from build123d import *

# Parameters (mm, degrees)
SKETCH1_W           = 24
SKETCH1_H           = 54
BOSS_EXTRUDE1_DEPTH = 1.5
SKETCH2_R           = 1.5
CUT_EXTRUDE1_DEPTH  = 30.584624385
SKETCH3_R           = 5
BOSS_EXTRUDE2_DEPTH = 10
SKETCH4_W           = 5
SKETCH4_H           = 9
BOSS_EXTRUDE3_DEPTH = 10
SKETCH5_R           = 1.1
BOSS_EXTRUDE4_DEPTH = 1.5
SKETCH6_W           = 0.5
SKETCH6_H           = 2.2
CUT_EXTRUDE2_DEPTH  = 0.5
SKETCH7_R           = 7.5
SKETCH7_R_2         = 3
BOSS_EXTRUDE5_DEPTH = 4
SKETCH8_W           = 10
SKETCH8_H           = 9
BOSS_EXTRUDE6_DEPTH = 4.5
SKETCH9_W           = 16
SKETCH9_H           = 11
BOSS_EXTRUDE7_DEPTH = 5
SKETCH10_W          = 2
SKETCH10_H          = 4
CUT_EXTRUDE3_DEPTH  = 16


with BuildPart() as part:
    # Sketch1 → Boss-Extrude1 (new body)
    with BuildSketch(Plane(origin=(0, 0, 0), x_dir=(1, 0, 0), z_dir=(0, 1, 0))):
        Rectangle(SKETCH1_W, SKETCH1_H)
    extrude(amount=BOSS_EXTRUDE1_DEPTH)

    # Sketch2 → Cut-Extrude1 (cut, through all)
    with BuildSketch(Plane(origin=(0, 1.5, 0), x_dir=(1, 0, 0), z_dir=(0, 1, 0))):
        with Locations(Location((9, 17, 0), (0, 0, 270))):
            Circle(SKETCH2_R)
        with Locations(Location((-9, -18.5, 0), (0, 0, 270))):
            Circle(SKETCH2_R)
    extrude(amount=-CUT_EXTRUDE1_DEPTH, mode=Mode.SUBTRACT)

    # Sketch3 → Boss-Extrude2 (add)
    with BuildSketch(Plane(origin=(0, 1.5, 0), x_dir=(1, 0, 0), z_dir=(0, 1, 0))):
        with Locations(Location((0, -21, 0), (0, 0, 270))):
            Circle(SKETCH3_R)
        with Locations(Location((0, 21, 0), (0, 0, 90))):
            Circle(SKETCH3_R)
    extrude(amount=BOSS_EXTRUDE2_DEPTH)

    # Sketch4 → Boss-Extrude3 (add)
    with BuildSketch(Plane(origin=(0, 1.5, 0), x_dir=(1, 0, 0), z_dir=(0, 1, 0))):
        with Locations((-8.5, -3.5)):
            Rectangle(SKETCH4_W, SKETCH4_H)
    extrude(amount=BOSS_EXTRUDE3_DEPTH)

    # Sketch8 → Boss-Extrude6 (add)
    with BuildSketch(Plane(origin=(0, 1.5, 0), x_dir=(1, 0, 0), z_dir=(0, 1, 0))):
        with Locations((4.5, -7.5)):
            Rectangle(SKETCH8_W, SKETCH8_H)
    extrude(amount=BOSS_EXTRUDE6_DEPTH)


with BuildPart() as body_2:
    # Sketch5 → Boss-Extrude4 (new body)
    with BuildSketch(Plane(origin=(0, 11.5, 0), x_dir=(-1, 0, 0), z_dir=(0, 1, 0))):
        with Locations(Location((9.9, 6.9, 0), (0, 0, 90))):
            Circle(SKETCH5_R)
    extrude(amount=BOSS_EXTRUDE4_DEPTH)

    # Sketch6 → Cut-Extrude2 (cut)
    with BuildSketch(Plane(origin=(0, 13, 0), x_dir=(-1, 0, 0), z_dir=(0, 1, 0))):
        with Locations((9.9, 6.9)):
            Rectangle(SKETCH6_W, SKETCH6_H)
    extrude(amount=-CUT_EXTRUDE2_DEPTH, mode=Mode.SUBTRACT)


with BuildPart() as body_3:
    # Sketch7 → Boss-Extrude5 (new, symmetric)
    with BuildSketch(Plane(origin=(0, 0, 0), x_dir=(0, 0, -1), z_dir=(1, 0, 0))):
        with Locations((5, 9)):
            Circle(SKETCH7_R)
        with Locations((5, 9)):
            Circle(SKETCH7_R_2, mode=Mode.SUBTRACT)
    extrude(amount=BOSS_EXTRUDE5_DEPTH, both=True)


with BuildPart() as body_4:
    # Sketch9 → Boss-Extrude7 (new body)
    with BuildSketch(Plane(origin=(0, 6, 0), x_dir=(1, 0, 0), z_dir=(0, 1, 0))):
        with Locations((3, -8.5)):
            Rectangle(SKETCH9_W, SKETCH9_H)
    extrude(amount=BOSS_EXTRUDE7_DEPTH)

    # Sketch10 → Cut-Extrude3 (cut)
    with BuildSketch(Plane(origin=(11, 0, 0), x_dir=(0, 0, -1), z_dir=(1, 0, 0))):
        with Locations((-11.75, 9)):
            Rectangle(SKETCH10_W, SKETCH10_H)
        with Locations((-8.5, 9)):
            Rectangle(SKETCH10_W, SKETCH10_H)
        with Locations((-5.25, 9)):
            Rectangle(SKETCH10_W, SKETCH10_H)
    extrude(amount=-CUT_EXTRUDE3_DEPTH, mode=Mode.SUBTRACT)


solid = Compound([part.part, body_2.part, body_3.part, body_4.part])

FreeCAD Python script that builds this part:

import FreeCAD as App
import Part
import Sketcher

V = App.Vector


def add_polygon(sketch, points):
    """Adds a closed chain of lines whose ends are joined by coincident constraints."""
    first, n = sketch.GeometryCount, len(points)
    for a, b in zip(points, points[1:] + points[:1]):
        sketch.addGeometry(Part.LineSegment(App.Vector(*a, 0), App.Vector(*b, 0)), False)
    for i in range(n):
        sketch.addConstraint(Sketcher.Constraint("Coincident", first + i, 2, first + (i + 1) % n, 1))

doc = App.newDocument("Part")
params = doc.addObject("Spreadsheet::Sheet", "Params")
for row, (alias, value) in enumerate([
    ("sketch1_width", "24 mm"),
    ("sketch1_height", "54 mm"),
    ("pad1_length", "1.5 mm"),
    ("sketch2_diameter", "3 mm"),
    ("sketch3_diameter", "10 mm"),
    ("pad2_length", "10 mm"),
    ("sketch4_width", "5 mm"),
    ("sketch4_height", "9 mm"),
    ("pad3_length", "10 mm"),
    ("sketch5_width", "10 mm"),
    ("sketch5_height", "9 mm"),
    ("pad4_length", "4.5 mm"),
    ("sketch6_diameter", "2.2 mm"),
    ("pad5_length", "1.5 mm"),
    ("sketch7_width", "0.5 mm"),
    ("sketch7_height", "2.2 mm"),
    ("pocket2_length", "0.5 mm"),
    ("sketch8_diameter", "15 mm"),
    ("sketch8_diameter2", "6 mm"),
    ("pad6_length", "8 mm"),
    ("sketch9_width", "16 mm"),
    ("sketch9_height", "11 mm"),
    ("pad7_length", "5 mm"),
    ("sketch10_width", "4 mm"),
    ("sketch10_height", "2 mm"),
    ("pocket3_length", "16 mm"),
], start=1):
    params.set(f"A{row}", alias)
    params.set(f"B{row}", "=" + value)
    params.setAlias(f"B{row}", alias)

body = doc.addObject("PartDesign::Body", "Body")

# Sketch on XZ plane
sketch1 = doc.addObject("Sketcher::SketchObject", "Sketch")
body.addObject(sketch1)
sketch1.AttachmentSupport = (doc.XZ_Plane, [""])
sketch1.MapMode = "FlatFace"
add_polygon(sketch1, [(-12, -27), (-12, 27), (12, 27), (12, -27)])  # lines 0-3
sketch1.addConstraint([
    Sketcher.Constraint("Vertical", 0),
    Sketcher.Constraint("Horizontal", 1),
    Sketcher.Constraint("Vertical", 2),
    Sketcher.Constraint("Horizontal", 3),
    Sketcher.Constraint("Symmetric", 0, 2, 2, 2, -1, 1),
    Sketcher.Constraint("DistanceX", 1, 1, 1, 2, 24.0),
    Sketcher.Constraint("DistanceY", 0, 1, 0, 2, 54.0),
])
sketch1.setExpression("Constraints[9]", "Params.sketch1_width")
sketch1.setExpression("Constraints[10]", "Params.sketch1_height")
pad1 = doc.addObject("PartDesign::Pad", "Pad")
body.addObject(pad1)
pad1.Profile = sketch1
pad1.setExpression("Length", "Params.pad1_length")
pad1.Reversed = True

# Sketch on XZ plane
sketch2 = doc.addObject("Sketcher::SketchObject", "Sketch001")
body.addObject(sketch2)
sketch2.AttachmentSupport = (doc.XZ_Plane, [""])
sketch2.MapMode = "FlatFace"
sketch2.AttachmentOffset = App.Placement(V(0, 0, -1.5), App.Rotation())
sketch2.addGeometry([
    Part.Circle(V(9, -17, 0), V(0, 0, 1), 1.5),
    Part.Circle(V(-9, 18.5, 0), V(0, 0, 1), 1.5),
], False)
sketch2.addConstraint([
    Sketcher.Constraint("Equal", 0, 1),
    Sketcher.Constraint("Diameter", 0, 3.0),
    Sketcher.Constraint("DistanceX", -1, 1, 0, 3, 9.0),
    Sketcher.Constraint("DistanceY", 0, 3, -1, 1, 17.0),
    Sketcher.Constraint("DistanceX", 1, 3, -1, 1, 9.0),
    Sketcher.Constraint("DistanceY", -1, 1, 1, 3, 18.5),
])
sketch2.setExpression("Constraints[1]", "Params.sketch2_diameter")
pocket1 = doc.addObject("PartDesign::Pocket", "Pocket")
body.addObject(pocket1)
pocket1.Profile = sketch2
pocket1.Type = "ThroughAll"
pocket1.Reversed = True

# Sketch on XZ plane
sketch3 = doc.addObject("Sketcher::SketchObject", "Sketch002")
body.addObject(sketch3)
sketch3.AttachmentSupport = (doc.XZ_Plane, [""])
sketch3.MapMode = "FlatFace"
sketch3.AttachmentOffset = App.Placement(V(0, 0, -1.5), App.Rotation())
sketch3.addGeometry([
    Part.Circle(V(0, 21, 0), V(0, 0, 1), 5),
    Part.Circle(V(0, -21, 0), V(0, 0, 1), 5),
], False)
sketch3.addConstraint([
    Sketcher.Constraint("Equal", 0, 1),
    Sketcher.Constraint("Symmetric", 0, 3, 1, 3, -1, 1),
    Sketcher.Constraint("PointOnObject", 0, 3, -2),
    Sketcher.Constraint("Diameter", 0, 10.0),
    Sketcher.Constraint("DistanceY", -1, 1, 0, 3, 21.0),
])
sketch3.setExpression("Constraints[3]", "Params.sketch3_diameter")
pad2 = doc.addObject("PartDesign::Pad", "Pad001")
body.addObject(pad2)
pad2.Profile = sketch3
pad2.setExpression("Length", "Params.pad2_length")
pad2.Reversed = True

# Sketch on XZ plane
sketch4 = doc.addObject("Sketcher::SketchObject", "Sketch003")
body.addObject(sketch4)
sketch4.AttachmentSupport = (doc.XZ_Plane, [""])
sketch4.MapMode = "FlatFace"
sketch4.AttachmentOffset = App.Placement(V(0, 0, -1.5), App.Rotation())
add_polygon(sketch4, [(-11, -1), (-11, 8), (-6, 8), (-6, -1)])  # lines 0-3
sketch4.addConstraint([
    Sketcher.Constraint("Vertical", 0),
    Sketcher.Constraint("Horizontal", 1),
    Sketcher.Constraint("Vertical", 2),
    Sketcher.Constraint("Horizontal", 3),
    Sketcher.Constraint("DistanceX", 1, 1, 1, 2, 5.0),
    Sketcher.Constraint("DistanceY", 0, 1, 0, 2, 9.0),
    Sketcher.Constraint("DistanceX", 0, 2, -1, 1, 11.0),
    Sketcher.Constraint("DistanceY", -1, 1, 0, 2, 8.0),
])
sketch4.setExpression("Constraints[8]", "Params.sketch4_width")
sketch4.setExpression("Constraints[9]", "Params.sketch4_height")
pad3 = doc.addObject("PartDesign::Pad", "Pad002")
body.addObject(pad3)
pad3.Profile = sketch4
pad3.setExpression("Length", "Params.pad3_length")
pad3.Reversed = True

# Sketch on XZ plane
sketch5 = doc.addObject("Sketcher::SketchObject", "Sketch004")
body.addObject(sketch5)
sketch5.AttachmentSupport = (doc.XZ_Plane, [""])
sketch5.MapMode = "FlatFace"
sketch5.AttachmentOffset = App.Placement(V(0, 0, -1.5), App.Rotation())
add_polygon(sketch5, [(0, 3), (0, 12), (10, 12), (10, 3)])  # lines 0-3
sketch5.addConstraint([
    Sketcher.Constraint("Vertical", 0),
    Sketcher.Constraint("Horizontal", 1),
    Sketcher.Constraint("Vertical", 2),
    Sketcher.Constraint("Horizontal", 3),
    Sketcher.Constraint("DistanceX", 1, 1, 1, 2, 10.0),
    Sketcher.Constraint("DistanceY", 0, 1, 0, 2, 9.0),
    Sketcher.Constraint("DistanceY", -1, 1, 0, 2, 12.0),
    Sketcher.Constraint("DistanceX", 0, 2, -1, 1, 0.5),
])
sketch5.setExpression("Constraints[8]", "Params.sketch5_width")
sketch5.setExpression("Constraints[9]", "Params.sketch5_height")
pad4 = doc.addObject("PartDesign::Pad", "Pad003")
body.addObject(pad4)
pad4.Profile = sketch5
pad4.setExpression("Length", "Params.pad4_length")
pad4.Reversed = True
body2 = doc.addObject("PartDesign::Body", "Body001")

# Sketch on XZ plane
sketch6 = doc.addObject("Sketcher::SketchObject", "Sketch005")
body2.addObject(sketch6)
sketch6.AttachmentSupport = (doc.getObject("XZ_Plane001"), [""])
sketch6.MapMode = "FlatFace"
sketch6.AttachmentOffset = App.Placement(V(0, 0, -11.5), App.Rotation())
sketch6.addGeometry(Part.Circle(V(-9.9, 6.9, 0), V(0, 0, 1), 1.1), False)
sketch6.addConstraint([
    Sketcher.Constraint("Diameter", 0, 2.2),
    Sketcher.Constraint("DistanceX", 0, 3, -1, 1, 9.9),
    Sketcher.Constraint("DistanceY", -1, 1, 0, 3, 6.9),
])
sketch6.setExpression("Constraints[0]", "Params.sketch6_diameter")
pad5 = doc.addObject("PartDesign::Pad", "Pad004")
body2.addObject(pad5)
pad5.Profile = sketch6
pad5.setExpression("Length", "Params.pad5_length")
pad5.Reversed = True

# Sketch on XZ plane
sketch7 = doc.addObject("Sketcher::SketchObject", "Sketch006")
body2.addObject(sketch7)
sketch7.AttachmentSupport = (doc.getObject("XZ_Plane001"), [""])
sketch7.MapMode = "FlatFace"
sketch7.AttachmentOffset = App.Placement(V(0, 0, -13), App.Rotation())
add_polygon(sketch7, [(-9.7, 8), (-9.7, 5.8), (-10.2, 5.8), (-10.2, 8)])  # lines 0-3
sketch7.addConstraint([
    Sketcher.Constraint("Vertical", 0),
    Sketcher.Constraint("Horizontal", 1),
    Sketcher.Constraint("Vertical", 2),
    Sketcher.Constraint("Horizontal", 3),
    Sketcher.Constraint("DistanceX", 1, 2, 1, 1, 0.5),
    Sketcher.Constraint("DistanceY", 0, 2, 0, 1, 2.2),
    Sketcher.Constraint("DistanceY", -1, 1, 2, 2, 8.0),
    Sketcher.Constraint("DistanceX", 0, 2, -1, 1, 9.65),
])
sketch7.setExpression("Constraints[8]", "Params.sketch7_width")
sketch7.setExpression("Constraints[9]", "Params.sketch7_height")
pocket2 = doc.addObject("PartDesign::Pocket", "Pocket001")
body2.addObject(pocket2)
pocket2.Profile = sketch7
pocket2.setExpression("Length", "Params.pocket2_length")
pocket2.Reversed = True
body3 = doc.addObject("PartDesign::Body", "Body002")

# Sketch on YZ plane
sketch8 = doc.addObject("Sketcher::SketchObject", "Sketch007")
body3.addObject(sketch8)
sketch8.AttachmentSupport = (doc.getObject("YZ_Plane002"), [""])
sketch8.MapMode = "FlatFace"
sketch8.addGeometry([
    Part.Circle(V(9, -5, 0), V(0, 0, 1), 7.5),
    Part.Circle(V(9, -5, 0), V(0, 0, 1), 3),
], False)
sketch8.addConstraint([
    Sketcher.Constraint("Coincident", 1, 3, 0, 3),
    Sketcher.Constraint("Diameter", 0, 15.0),
    Sketcher.Constraint("Diameter", 1, 6.0),
    Sketcher.Constraint("DistanceX", -1, 1, 0, 3, 9.0),
    Sketcher.Constraint("DistanceY", 0, 3, -1, 1, 5.0),
])
sketch8.setExpression("Constraints[1]", "Params.sketch8_diameter")
sketch8.setExpression("Constraints[2]", "Params.sketch8_diameter2")
pad6 = doc.addObject("PartDesign::Pad", "Pad005")
body3.addObject(pad6)
pad6.Profile = sketch8
pad6.setExpression("Length", "Params.pad6_length")
pad6.Midplane = True
body4 = doc.addObject("PartDesign::Body", "Body003")

# Sketch on XZ plane
sketch9 = doc.addObject("Sketcher::SketchObject", "Sketch008")
body4.addObject(sketch9)
sketch9.AttachmentSupport = (doc.getObject("XZ_Plane003"), [""])
sketch9.MapMode = "FlatFace"
sketch9.AttachmentOffset = App.Placement(V(0, 0, -6), App.Rotation())
add_polygon(sketch9, [(-5, 3), (-5, 14), (11, 14), (11, 3)])  # lines 0-3
sketch9.addConstraint([
    Sketcher.Constraint("Vertical", 0),
    Sketcher.Constraint("Horizontal", 1),
    Sketcher.Constraint("Vertical", 2),
    Sketcher.Constraint("Horizontal", 3),
    Sketcher.Constraint("DistanceX", 1, 1, 1, 2, 16.0),
    Sketcher.Constraint("DistanceY", 0, 1, 0, 2, 11.0),
    Sketcher.Constraint("DistanceX", 0, 2, -1, 1, 5.0),
    Sketcher.Constraint("DistanceY", -1, 1, 0, 2, 14.0),
])
sketch9.setExpression("Constraints[8]", "Params.sketch9_width")
sketch9.setExpression("Constraints[9]", "Params.sketch9_height")
pad7 = doc.addObject("PartDesign::Pad", "Pad006")
body4.addObject(pad7)
pad7.Profile = sketch9
pad7.setExpression("Length", "Params.pad7_length")
pad7.Reversed = True

# Sketch on YZ plane
sketch10 = doc.addObject("Sketcher::SketchObject", "Sketch009")
body4.addObject(sketch10)
sketch10.AttachmentSupport = (doc.getObject("YZ_Plane003"), [""])
sketch10.MapMode = "FlatFace"
sketch10.AttachmentOffset = App.Placement(V(0, 0, 11), App.Rotation())
add_polygon(sketch10, [(11, 12.8), (7, 12.8), (7, 10.8), (11, 10.8)])  # lines 0-3
add_polygon(sketch10, [(11, 9.5), (7, 9.5), (7, 7.5), (11, 7.5)])  # lines 4-7
add_polygon(sketch10, [(11, 6.2), (7, 6.2), (7, 4.2), (11, 4.2)])  # lines 8-11
sketch10.addConstraint([
    Sketcher.Constraint("Horizontal", 0),
    Sketcher.Constraint("Vertical", 1),
    Sketcher.Constraint("Horizontal", 2),
    Sketcher.Constraint("Vertical", 3),
    Sketcher.Constraint("Horizontal", 4),
    Sketcher.Constraint("Vertical", 5),
    Sketcher.Constraint("Horizontal", 6),
    Sketcher.Constraint("Vertical", 7),
    Sketcher.Constraint("Horizontal", 8),
    Sketcher.Constraint("Vertical", 9),
    Sketcher.Constraint("Horizontal", 10),
    Sketcher.Constraint("Vertical", 11),
    Sketcher.Constraint("Vertical", 1, 2, 4, 2),
    Sketcher.Constraint("Vertical", 3, 2, 6, 2),
    Sketcher.Constraint("Vertical", 5, 2, 8, 2),
    Sketcher.Constraint("Vertical", 7, 2, 10, 2),
    Sketcher.Constraint("Equal", 3, 5),
    Sketcher.Constraint("Equal", 7, 9),
    Sketcher.Constraint("DistanceX", 0, 2, 0, 1, 4.0),
    Sketcher.Constraint("DistanceY", 1, 2, 1, 1, 2.0),
    Sketcher.Constraint("DistanceX", -1, 1, 0, 2, 7.0),
    Sketcher.Constraint("DistanceY", -1, 1, 4, 2, 9.5),
    Sketcher.Constraint("DistanceY", 8, 2, 1, 2, 4.5),
    Sketcher.Constraint("DistanceY", -1, 1, 0, 2, 12.75),
])
sketch10.setExpression("Constraints[30]", "Params.sketch10_width")
sketch10.setExpression("Constraints[31]", "Params.sketch10_height")
pocket3 = doc.addObject("PartDesign::Pocket", "Pocket002")
body4.addObject(pocket3)
pocket3.Profile = sketch10
pocket3.setExpression("Length", "Params.pocket3_length")

doc.recompute()
